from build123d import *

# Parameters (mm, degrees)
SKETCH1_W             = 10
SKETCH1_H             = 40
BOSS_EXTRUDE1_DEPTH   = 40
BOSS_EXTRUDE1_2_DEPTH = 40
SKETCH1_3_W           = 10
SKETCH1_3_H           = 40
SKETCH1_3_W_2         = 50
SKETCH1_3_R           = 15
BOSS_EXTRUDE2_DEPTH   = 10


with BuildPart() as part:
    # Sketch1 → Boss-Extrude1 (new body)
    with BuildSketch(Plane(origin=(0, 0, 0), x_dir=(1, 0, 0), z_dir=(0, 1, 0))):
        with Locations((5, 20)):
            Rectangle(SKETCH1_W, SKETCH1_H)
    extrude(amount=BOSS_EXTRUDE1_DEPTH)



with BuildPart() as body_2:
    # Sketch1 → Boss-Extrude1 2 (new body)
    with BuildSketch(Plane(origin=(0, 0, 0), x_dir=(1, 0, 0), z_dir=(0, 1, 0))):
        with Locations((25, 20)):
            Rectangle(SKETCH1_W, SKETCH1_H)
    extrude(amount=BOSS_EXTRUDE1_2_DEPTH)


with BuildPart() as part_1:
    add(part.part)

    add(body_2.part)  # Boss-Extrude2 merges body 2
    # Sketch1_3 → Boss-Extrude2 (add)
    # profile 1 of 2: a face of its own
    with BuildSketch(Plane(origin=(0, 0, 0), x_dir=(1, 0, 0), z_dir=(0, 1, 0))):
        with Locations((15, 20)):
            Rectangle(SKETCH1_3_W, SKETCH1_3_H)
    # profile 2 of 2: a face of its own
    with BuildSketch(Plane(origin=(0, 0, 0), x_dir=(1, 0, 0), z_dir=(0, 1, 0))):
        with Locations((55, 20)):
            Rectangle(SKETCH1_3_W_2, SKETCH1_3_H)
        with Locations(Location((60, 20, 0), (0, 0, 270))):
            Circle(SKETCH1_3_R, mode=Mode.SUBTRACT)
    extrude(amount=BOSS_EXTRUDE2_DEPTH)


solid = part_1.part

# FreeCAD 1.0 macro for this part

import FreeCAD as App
import Part
import Sketcher


def add_polygon(sketch, points):
    """Adds a closed chain of lines whose ends are joined by coincident constraints."""
    first, n = sketch.GeometryCount, len(points)
    for a, b in zip(points, points[1:] + points[:1]):
        sketch.addGeometry(Part.LineSegment(App.Vector(*a, 0), App.Vector(*b, 0)), False)
    for i in range(n):
        sketch.addConstraint(Sketcher.Constraint("Coincident", first + i, 2, first + (i + 1) % n, 1))

doc = App.newDocument("Part")
body = doc.addObject("PartDesign::Body", "Body")

# Sketch on XZ plane
sketch1 = body.newObject("Sketcher::SketchObject", "Sketch")
sketch1.AttachmentSupport = (doc.getObject("XZ_Plane"), [""])
sketch1.MapMode = "FlatFace"
add_polygon(sketch1, [(0, -40), (0, 0), (10, 0), (10, -40)])  # lines 0-3
sketch1.addConstraint([
    Sketcher.Constraint("Vertical", 0),
    Sketcher.Constraint("Horizontal", 1),
    Sketcher.Constraint("Vertical", 2),
    Sketcher.Constraint("Horizontal", 3),
    Sketcher.Constraint("Coincident", 0, 2, -1, 1),
    Sketcher.Constraint("DistanceX", 1, 1, 1, 2, 10.0),
    Sketcher.Constraint("DistanceY", 0, 1, 0, 2, 40.0),
])
pad1 = body.newObject("PartDesign::Pad", "Pad")
pad1.Profile = sketch1
pad1.Length = 40
pad1.Reversed = True
body2 = doc.addObject("PartDesign::Body", "Body001")

# Sketch on XZ plane
sketch2 = body2.newObject("Sketcher::SketchObject", "Sketch001")
sketch2.AttachmentSupport = (doc.getObject("XZ_Plane001"), [""])
sketch2.MapMode = "FlatFace"
add_polygon(sketch2, [(20, -40), (20, 0), (30, 0), (30, -40)])  # lines 0-3
sketch2.addConstraint([
    Sketcher.Constraint("Vertical", 0),
    Sketcher.Constraint("Horizontal", 1),
    Sketcher.Constraint("Vertical", 2),
    Sketcher.Constraint("Horizontal", 3),
    Sketcher.Constraint("PointOnObject", 0, 2, -1),
    Sketcher.Constraint("DistanceX", 1, 1, 1, 2, 10.0),
    Sketcher.Constraint("DistanceY", 0, 1, 0, 2, 40.0),
    Sketcher.Constraint("DistanceX", -1, 1, 0, 2, 20.0),
])
pad2 = body2.newObject("PartDesign::Pad", "Pad001")
pad2.Profile = sketch2
pad2.Length = 40
pad2.Reversed = True
body.AllowCompound = True
doc.recompute()

boolean = body.newObject("PartDesign::Boolean", "Boolean")
boolean.Type = "Fuse"
boolean.addObjects([body2])

# Sketch on XZ plane
sketch3 = body.newObject("Sketcher::SketchObject", "Sketch002")
sketch3.AttachmentSupport = (doc.getObject("XZ_Plane"), [""])
sketch3.MapMode = "FlatFace"
add_polygon(sketch3, [(10, -40), (10, 0), (20, 0), (20, -40)])  # lines 0-3
add_polygon(sketch3, [(30, -40), (30, 0), (80, 0), (80, -40)])  # lines 4-7
sketch3.addGeometry(Part.Circle(App.Vector(60, -20, 0), App.Vector(0, 0, 1), 15), False)  # 8
sketch3.addConstraint([
    Sketcher.Constraint("Vertical", 0),
    Sketcher.Constraint("Horizontal", 1),
    Sketcher.Constraint("Vertical", 2),
    Sketcher.Constraint("Horizontal", 3),
    Sketcher.Constraint("Vertical", 4),
    Sketcher.Constraint("Horizontal", 5),
    Sketcher.Constraint("Vertical", 6),
    Sketcher.Constraint("Horizontal", 7),
    Sketcher.Constraint("PointOnObject", 0, 2, -1),
    Sketcher.Constraint("PointOnObject", 4, 2, -1),
    Sketcher.Constraint("Horizontal", 3, 2, 6, 2),
    Sketcher.Constraint("Diameter", 8, 30.0),
    Sketcher.Constraint("DistanceX", 1, 1, 1, 2, 10.0),
    Sketcher.Constraint("DistanceX", 5, 1, 5, 2, 50.0),
    Sketcher.Constraint("DistanceY", 0, 1, 0, 2, 40.0),
    Sketcher.Constraint("DistanceX", -1, 1, 8, 3, 60.0),
    Sketcher.Constraint("DistanceY", 8, 3, -1, 1, 20.0),
    Sketcher.Constraint("DistanceX", -1, 1, 0, 2, 10.0),
    Sketcher.Constraint("DistanceX", -1, 1, 4, 2, 30.0),
])
pad3 = body.newObject("PartDesign::Pad", "Pad002")
pad3.Profile = sketch3
pad3.Length = 10
pad3.Reversed = True

doc.recompute()
